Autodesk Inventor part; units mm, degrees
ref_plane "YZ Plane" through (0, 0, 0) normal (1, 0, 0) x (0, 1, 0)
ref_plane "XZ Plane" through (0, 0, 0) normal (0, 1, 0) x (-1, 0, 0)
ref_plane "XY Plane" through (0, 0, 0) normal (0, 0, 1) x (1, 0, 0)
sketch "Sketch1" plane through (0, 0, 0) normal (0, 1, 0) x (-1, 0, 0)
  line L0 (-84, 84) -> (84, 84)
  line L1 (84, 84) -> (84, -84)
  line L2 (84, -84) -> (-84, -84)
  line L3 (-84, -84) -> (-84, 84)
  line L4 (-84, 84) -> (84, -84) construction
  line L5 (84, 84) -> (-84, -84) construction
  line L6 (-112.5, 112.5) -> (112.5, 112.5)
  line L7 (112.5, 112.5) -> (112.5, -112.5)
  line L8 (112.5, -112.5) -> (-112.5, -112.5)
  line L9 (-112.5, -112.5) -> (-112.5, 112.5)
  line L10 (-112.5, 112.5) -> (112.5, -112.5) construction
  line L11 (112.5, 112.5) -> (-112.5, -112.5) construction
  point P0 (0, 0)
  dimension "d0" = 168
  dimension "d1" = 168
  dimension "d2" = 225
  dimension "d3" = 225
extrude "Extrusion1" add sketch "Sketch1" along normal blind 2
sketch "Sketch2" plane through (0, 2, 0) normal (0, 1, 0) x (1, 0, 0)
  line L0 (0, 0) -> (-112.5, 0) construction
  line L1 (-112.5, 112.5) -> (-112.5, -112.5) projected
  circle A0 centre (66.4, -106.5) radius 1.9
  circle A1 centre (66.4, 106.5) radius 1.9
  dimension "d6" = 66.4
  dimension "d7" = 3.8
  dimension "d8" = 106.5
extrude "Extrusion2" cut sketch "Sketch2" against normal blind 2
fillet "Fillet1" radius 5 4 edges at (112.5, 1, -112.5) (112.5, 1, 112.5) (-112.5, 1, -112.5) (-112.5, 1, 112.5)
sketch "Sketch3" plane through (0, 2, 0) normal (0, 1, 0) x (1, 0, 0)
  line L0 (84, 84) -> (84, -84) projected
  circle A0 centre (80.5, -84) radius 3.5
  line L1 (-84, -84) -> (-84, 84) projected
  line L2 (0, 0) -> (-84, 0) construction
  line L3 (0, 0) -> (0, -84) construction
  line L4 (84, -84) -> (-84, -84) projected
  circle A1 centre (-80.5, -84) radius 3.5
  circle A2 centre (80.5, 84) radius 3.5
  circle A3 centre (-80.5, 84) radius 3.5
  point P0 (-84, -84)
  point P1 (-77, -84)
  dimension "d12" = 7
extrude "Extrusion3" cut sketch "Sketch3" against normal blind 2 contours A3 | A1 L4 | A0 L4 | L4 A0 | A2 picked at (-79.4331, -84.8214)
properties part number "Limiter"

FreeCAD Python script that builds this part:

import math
import FreeCAD as App
import Part
import Sketcher

V = App.Vector


def edges_at(feature, points):
    """Names of the edges that pass closest to the given points."""
    edges = feature.Shape.Edges
    near = lambda p: min(range(len(edges)), key=lambda i: edges[i].distToShape(Part.Vertex(*p))[0])
    return sorted({f"Edge{near(p) + 1}" for p in points})


def add_polygon(sketch, points):
    """Adds a closed chain of lines whose ends are joined by coincident constraints."""
    first, n = sketch.GeometryCount, len(points)
    for a, b in zip(points, points[1:] + points[:1]):
        sketch.addGeometry(Part.LineSegment(App.Vector(*a, 0), App.Vector(*b, 0)), False)
    for i in range(n):
        sketch.addConstraint(Sketcher.Constraint("Coincident", first + i, 2, first + (i + 1) % n, 1))

doc = App.newDocument("Part")
params = doc.addObject("Spreadsheet::Sheet", "Params")
for row, (alias, value) in enumerate([
    ("sketch1_width", "225 mm"),
    ("sketch1_width2", "168 mm"),
    ("pad1_length", "2 mm"),
    ("sketch2_diameter", "3.8 mm"),
    ("pocket1_length", "2 mm"),
    ("fillet_radius", "5 mm"),
    ("sketch3_diameter", "7 mm"),
    ("pocket2_length", "2 mm"),
], start=1):
    params.set(f"A{row}", alias)
    params.set(f"B{row}", "=" + value)
    params.setAlias(f"B{row}", alias)

body = doc.addObject("PartDesign::Body", "Body")

# Sketch on XZ plane
sketch1 = doc.addObject("Sketcher::SketchObject", "Sketch")
body.addObject(sketch1)
sketch1.AttachmentSupport = (doc.XZ_Plane, [""])
sketch1.MapMode = "FlatFace"
add_polygon(sketch1, [(-112, 112), (112, 112), (112, -112), (-112, -112)])  # lines 0-3
add_polygon(sketch1, [(84, -84), (84, 84), (-84, 84), (-84, -84)])  # lines 4-7
sketch1.addConstraint([
    Sketcher.Constraint("Horizontal", 0),
    Sketcher.Constraint("Vertical", 1),
    Sketcher.Constraint("Horizontal", 2),
    Sketcher.Constraint("Vertical", 3),
    Sketcher.Constraint("Vertical", 4),
    Sketcher.Constraint("Horizontal", 5),
    Sketcher.Constraint("Vertical", 6),
    Sketcher.Constraint("Horizontal", 7),
    Sketcher.Constraint("Symmetric", 0, 2, 2, 2, -1, 1),
    Sketcher.Constraint("Symmetric", 4, 2, 6, 2, -1, 1),
    Sketcher.Constraint("Equal", 2, 1),
    Sketcher.Constraint("Equal", 7, 4),
    Sketcher.Constraint("DistanceX", 0, 1, 0, 2, 225.0),
    Sketcher.Constraint("DistanceX", 5, 2, 5, 1, 168.0),
])
sketch1.setExpression("Constraints[20]", "Params.sketch1_width")
sketch1.setExpression("Constraints[21]", "Params.sketch1_width2")
pad1 = doc.addObject("PartDesign::Pad", "Pad")
body.addObject(pad1)
pad1.Profile = sketch1
pad1.setExpression("Length", "Params.pad1_length")
pad1.Reversed = True

# Sketch on XZ plane
sketch2 = doc.addObject("Sketcher::SketchObject", "Sketch001")
body.addObject(sketch2)
sketch2.AttachmentSupport = (doc.XZ_Plane, [""])
sketch2.MapMode = "FlatFace"
sketch2.AttachmentOffset = App.Placement(V(0, 0, -2), App.Rotation())
sketch2.addGeometry([
    Part.Circle(V(66.4, 106.5, 0), V(0, 0, 1), 1.9),
    Part.Circle(V(66.4, -106.5, 0), V(0, 0, 1), 1.9),
], False)
sketch2.addConstraint([
    Sketcher.Constraint("Equal", 0, 1),
    Sketcher.Constraint("Symmetric", 0, 3, 1, 3, -1),
    Sketcher.Constraint("Diameter", 0, 3.8),
    Sketcher.Constraint("DistanceX", -1, 1, 0, 3, 66.4),
    Sketcher.Constraint("DistanceY", -1, 1, 0, 3, 106.5),
])
sketch2.setExpression("Constraints[2]", "Params.sketch2_diameter")
pocket1 = doc.addObject("PartDesign::Pocket", "Pocket")
body.addObject(pocket1)
pocket1.Profile = sketch2
pocket1.setExpression("Length", "Params.pocket1_length")
pocket1.Reversed = True
doc.recompute()

fillet = doc.addObject("PartDesign::Fillet", "Fillet")
body.addObject(fillet)
fillet.Base = (pocket1, edges_at(pocket1, [
    (112.5, 1, -112.5),
    (112.5, 1, 112.5),
    (-112.5, 1, -112.5),
    (-112.5, 1, 112.5),
]))
fillet.setExpression("Radius", "Params.fillet_radius")

# Sketch on XZ plane
sketch3 = doc.addObject("Sketcher::SketchObject", "Sketch002")
body.addObject(sketch3)
sketch3.AttachmentSupport = (doc.XZ_Plane, [""])
sketch3.MapMode = "FlatFace"
sketch3.AttachmentOffset = App.Placement(V(0, 0, -2), App.Rotation())
sketch3.addGeometry([
    Part.Circle(V(-80.5, -84, 0), V(0, 0, 1), 3.5),  # 0
    Part.ArcOfCircle(Part.Circle(V(-80.5, 84, 0), V(0, 0, 1), 3.5), math.radians(0), math.radians(180)),  # 1
    Part.LineSegment(V(-77, 84, 0), V(-84, 84, 0)),  # 2
    Part.Circle(V(80.5, 84, 0), V(0, 0, 1), 3.5),  # 3
    Part.Circle(V(80.5, -84, 0), V(0, 0, 1), 3.5),  # 4
], False)
sketch3.addConstraint([
    Sketcher.Constraint("Coincident", 1, 1, 2, 1),
    Sketcher.Constraint("Coincident", 2, 2, 1, 2),
    Sketcher.Constraint("Horizontal", 2),
    Sketcher.Constraint("Equal", 0, 1),
    Sketcher.Constraint("Equal", 1, 3),
    Sketcher.Constraint("Equal", 3, 4),
    Sketcher.Constraint("Symmetric", 0, 3, 3, 3, -1, 1),
    Sketcher.Constraint("Symmetric", 1, 3, 4, 3, -1, 1),
    Sketcher.Constraint("Symmetric", 1, 3, 3, 3, -2),
    Sketcher.Constraint("Horizontal", 3, 3, 1, 1),
    Sketcher.Constraint("Diameter", 0, 7.0),
    Sketcher.Constraint("DistanceY", 0, 3, -1, 1, 84.0),
    Sketcher.Constraint("DistanceX", 1, 1, -1, 1, 77.0),
])
sketch3.setExpression("Constraints[10]", "Params.sketch3_diameter")
pocket2 = doc.addObject("PartDesign::Pocket", "Pocket001")
body.addObject(pocket2)
pocket2.Profile = sketch3
pocket2.setExpression("Length", "Params.pocket2_length")
pocket2.Reversed = True

doc.recompute()
